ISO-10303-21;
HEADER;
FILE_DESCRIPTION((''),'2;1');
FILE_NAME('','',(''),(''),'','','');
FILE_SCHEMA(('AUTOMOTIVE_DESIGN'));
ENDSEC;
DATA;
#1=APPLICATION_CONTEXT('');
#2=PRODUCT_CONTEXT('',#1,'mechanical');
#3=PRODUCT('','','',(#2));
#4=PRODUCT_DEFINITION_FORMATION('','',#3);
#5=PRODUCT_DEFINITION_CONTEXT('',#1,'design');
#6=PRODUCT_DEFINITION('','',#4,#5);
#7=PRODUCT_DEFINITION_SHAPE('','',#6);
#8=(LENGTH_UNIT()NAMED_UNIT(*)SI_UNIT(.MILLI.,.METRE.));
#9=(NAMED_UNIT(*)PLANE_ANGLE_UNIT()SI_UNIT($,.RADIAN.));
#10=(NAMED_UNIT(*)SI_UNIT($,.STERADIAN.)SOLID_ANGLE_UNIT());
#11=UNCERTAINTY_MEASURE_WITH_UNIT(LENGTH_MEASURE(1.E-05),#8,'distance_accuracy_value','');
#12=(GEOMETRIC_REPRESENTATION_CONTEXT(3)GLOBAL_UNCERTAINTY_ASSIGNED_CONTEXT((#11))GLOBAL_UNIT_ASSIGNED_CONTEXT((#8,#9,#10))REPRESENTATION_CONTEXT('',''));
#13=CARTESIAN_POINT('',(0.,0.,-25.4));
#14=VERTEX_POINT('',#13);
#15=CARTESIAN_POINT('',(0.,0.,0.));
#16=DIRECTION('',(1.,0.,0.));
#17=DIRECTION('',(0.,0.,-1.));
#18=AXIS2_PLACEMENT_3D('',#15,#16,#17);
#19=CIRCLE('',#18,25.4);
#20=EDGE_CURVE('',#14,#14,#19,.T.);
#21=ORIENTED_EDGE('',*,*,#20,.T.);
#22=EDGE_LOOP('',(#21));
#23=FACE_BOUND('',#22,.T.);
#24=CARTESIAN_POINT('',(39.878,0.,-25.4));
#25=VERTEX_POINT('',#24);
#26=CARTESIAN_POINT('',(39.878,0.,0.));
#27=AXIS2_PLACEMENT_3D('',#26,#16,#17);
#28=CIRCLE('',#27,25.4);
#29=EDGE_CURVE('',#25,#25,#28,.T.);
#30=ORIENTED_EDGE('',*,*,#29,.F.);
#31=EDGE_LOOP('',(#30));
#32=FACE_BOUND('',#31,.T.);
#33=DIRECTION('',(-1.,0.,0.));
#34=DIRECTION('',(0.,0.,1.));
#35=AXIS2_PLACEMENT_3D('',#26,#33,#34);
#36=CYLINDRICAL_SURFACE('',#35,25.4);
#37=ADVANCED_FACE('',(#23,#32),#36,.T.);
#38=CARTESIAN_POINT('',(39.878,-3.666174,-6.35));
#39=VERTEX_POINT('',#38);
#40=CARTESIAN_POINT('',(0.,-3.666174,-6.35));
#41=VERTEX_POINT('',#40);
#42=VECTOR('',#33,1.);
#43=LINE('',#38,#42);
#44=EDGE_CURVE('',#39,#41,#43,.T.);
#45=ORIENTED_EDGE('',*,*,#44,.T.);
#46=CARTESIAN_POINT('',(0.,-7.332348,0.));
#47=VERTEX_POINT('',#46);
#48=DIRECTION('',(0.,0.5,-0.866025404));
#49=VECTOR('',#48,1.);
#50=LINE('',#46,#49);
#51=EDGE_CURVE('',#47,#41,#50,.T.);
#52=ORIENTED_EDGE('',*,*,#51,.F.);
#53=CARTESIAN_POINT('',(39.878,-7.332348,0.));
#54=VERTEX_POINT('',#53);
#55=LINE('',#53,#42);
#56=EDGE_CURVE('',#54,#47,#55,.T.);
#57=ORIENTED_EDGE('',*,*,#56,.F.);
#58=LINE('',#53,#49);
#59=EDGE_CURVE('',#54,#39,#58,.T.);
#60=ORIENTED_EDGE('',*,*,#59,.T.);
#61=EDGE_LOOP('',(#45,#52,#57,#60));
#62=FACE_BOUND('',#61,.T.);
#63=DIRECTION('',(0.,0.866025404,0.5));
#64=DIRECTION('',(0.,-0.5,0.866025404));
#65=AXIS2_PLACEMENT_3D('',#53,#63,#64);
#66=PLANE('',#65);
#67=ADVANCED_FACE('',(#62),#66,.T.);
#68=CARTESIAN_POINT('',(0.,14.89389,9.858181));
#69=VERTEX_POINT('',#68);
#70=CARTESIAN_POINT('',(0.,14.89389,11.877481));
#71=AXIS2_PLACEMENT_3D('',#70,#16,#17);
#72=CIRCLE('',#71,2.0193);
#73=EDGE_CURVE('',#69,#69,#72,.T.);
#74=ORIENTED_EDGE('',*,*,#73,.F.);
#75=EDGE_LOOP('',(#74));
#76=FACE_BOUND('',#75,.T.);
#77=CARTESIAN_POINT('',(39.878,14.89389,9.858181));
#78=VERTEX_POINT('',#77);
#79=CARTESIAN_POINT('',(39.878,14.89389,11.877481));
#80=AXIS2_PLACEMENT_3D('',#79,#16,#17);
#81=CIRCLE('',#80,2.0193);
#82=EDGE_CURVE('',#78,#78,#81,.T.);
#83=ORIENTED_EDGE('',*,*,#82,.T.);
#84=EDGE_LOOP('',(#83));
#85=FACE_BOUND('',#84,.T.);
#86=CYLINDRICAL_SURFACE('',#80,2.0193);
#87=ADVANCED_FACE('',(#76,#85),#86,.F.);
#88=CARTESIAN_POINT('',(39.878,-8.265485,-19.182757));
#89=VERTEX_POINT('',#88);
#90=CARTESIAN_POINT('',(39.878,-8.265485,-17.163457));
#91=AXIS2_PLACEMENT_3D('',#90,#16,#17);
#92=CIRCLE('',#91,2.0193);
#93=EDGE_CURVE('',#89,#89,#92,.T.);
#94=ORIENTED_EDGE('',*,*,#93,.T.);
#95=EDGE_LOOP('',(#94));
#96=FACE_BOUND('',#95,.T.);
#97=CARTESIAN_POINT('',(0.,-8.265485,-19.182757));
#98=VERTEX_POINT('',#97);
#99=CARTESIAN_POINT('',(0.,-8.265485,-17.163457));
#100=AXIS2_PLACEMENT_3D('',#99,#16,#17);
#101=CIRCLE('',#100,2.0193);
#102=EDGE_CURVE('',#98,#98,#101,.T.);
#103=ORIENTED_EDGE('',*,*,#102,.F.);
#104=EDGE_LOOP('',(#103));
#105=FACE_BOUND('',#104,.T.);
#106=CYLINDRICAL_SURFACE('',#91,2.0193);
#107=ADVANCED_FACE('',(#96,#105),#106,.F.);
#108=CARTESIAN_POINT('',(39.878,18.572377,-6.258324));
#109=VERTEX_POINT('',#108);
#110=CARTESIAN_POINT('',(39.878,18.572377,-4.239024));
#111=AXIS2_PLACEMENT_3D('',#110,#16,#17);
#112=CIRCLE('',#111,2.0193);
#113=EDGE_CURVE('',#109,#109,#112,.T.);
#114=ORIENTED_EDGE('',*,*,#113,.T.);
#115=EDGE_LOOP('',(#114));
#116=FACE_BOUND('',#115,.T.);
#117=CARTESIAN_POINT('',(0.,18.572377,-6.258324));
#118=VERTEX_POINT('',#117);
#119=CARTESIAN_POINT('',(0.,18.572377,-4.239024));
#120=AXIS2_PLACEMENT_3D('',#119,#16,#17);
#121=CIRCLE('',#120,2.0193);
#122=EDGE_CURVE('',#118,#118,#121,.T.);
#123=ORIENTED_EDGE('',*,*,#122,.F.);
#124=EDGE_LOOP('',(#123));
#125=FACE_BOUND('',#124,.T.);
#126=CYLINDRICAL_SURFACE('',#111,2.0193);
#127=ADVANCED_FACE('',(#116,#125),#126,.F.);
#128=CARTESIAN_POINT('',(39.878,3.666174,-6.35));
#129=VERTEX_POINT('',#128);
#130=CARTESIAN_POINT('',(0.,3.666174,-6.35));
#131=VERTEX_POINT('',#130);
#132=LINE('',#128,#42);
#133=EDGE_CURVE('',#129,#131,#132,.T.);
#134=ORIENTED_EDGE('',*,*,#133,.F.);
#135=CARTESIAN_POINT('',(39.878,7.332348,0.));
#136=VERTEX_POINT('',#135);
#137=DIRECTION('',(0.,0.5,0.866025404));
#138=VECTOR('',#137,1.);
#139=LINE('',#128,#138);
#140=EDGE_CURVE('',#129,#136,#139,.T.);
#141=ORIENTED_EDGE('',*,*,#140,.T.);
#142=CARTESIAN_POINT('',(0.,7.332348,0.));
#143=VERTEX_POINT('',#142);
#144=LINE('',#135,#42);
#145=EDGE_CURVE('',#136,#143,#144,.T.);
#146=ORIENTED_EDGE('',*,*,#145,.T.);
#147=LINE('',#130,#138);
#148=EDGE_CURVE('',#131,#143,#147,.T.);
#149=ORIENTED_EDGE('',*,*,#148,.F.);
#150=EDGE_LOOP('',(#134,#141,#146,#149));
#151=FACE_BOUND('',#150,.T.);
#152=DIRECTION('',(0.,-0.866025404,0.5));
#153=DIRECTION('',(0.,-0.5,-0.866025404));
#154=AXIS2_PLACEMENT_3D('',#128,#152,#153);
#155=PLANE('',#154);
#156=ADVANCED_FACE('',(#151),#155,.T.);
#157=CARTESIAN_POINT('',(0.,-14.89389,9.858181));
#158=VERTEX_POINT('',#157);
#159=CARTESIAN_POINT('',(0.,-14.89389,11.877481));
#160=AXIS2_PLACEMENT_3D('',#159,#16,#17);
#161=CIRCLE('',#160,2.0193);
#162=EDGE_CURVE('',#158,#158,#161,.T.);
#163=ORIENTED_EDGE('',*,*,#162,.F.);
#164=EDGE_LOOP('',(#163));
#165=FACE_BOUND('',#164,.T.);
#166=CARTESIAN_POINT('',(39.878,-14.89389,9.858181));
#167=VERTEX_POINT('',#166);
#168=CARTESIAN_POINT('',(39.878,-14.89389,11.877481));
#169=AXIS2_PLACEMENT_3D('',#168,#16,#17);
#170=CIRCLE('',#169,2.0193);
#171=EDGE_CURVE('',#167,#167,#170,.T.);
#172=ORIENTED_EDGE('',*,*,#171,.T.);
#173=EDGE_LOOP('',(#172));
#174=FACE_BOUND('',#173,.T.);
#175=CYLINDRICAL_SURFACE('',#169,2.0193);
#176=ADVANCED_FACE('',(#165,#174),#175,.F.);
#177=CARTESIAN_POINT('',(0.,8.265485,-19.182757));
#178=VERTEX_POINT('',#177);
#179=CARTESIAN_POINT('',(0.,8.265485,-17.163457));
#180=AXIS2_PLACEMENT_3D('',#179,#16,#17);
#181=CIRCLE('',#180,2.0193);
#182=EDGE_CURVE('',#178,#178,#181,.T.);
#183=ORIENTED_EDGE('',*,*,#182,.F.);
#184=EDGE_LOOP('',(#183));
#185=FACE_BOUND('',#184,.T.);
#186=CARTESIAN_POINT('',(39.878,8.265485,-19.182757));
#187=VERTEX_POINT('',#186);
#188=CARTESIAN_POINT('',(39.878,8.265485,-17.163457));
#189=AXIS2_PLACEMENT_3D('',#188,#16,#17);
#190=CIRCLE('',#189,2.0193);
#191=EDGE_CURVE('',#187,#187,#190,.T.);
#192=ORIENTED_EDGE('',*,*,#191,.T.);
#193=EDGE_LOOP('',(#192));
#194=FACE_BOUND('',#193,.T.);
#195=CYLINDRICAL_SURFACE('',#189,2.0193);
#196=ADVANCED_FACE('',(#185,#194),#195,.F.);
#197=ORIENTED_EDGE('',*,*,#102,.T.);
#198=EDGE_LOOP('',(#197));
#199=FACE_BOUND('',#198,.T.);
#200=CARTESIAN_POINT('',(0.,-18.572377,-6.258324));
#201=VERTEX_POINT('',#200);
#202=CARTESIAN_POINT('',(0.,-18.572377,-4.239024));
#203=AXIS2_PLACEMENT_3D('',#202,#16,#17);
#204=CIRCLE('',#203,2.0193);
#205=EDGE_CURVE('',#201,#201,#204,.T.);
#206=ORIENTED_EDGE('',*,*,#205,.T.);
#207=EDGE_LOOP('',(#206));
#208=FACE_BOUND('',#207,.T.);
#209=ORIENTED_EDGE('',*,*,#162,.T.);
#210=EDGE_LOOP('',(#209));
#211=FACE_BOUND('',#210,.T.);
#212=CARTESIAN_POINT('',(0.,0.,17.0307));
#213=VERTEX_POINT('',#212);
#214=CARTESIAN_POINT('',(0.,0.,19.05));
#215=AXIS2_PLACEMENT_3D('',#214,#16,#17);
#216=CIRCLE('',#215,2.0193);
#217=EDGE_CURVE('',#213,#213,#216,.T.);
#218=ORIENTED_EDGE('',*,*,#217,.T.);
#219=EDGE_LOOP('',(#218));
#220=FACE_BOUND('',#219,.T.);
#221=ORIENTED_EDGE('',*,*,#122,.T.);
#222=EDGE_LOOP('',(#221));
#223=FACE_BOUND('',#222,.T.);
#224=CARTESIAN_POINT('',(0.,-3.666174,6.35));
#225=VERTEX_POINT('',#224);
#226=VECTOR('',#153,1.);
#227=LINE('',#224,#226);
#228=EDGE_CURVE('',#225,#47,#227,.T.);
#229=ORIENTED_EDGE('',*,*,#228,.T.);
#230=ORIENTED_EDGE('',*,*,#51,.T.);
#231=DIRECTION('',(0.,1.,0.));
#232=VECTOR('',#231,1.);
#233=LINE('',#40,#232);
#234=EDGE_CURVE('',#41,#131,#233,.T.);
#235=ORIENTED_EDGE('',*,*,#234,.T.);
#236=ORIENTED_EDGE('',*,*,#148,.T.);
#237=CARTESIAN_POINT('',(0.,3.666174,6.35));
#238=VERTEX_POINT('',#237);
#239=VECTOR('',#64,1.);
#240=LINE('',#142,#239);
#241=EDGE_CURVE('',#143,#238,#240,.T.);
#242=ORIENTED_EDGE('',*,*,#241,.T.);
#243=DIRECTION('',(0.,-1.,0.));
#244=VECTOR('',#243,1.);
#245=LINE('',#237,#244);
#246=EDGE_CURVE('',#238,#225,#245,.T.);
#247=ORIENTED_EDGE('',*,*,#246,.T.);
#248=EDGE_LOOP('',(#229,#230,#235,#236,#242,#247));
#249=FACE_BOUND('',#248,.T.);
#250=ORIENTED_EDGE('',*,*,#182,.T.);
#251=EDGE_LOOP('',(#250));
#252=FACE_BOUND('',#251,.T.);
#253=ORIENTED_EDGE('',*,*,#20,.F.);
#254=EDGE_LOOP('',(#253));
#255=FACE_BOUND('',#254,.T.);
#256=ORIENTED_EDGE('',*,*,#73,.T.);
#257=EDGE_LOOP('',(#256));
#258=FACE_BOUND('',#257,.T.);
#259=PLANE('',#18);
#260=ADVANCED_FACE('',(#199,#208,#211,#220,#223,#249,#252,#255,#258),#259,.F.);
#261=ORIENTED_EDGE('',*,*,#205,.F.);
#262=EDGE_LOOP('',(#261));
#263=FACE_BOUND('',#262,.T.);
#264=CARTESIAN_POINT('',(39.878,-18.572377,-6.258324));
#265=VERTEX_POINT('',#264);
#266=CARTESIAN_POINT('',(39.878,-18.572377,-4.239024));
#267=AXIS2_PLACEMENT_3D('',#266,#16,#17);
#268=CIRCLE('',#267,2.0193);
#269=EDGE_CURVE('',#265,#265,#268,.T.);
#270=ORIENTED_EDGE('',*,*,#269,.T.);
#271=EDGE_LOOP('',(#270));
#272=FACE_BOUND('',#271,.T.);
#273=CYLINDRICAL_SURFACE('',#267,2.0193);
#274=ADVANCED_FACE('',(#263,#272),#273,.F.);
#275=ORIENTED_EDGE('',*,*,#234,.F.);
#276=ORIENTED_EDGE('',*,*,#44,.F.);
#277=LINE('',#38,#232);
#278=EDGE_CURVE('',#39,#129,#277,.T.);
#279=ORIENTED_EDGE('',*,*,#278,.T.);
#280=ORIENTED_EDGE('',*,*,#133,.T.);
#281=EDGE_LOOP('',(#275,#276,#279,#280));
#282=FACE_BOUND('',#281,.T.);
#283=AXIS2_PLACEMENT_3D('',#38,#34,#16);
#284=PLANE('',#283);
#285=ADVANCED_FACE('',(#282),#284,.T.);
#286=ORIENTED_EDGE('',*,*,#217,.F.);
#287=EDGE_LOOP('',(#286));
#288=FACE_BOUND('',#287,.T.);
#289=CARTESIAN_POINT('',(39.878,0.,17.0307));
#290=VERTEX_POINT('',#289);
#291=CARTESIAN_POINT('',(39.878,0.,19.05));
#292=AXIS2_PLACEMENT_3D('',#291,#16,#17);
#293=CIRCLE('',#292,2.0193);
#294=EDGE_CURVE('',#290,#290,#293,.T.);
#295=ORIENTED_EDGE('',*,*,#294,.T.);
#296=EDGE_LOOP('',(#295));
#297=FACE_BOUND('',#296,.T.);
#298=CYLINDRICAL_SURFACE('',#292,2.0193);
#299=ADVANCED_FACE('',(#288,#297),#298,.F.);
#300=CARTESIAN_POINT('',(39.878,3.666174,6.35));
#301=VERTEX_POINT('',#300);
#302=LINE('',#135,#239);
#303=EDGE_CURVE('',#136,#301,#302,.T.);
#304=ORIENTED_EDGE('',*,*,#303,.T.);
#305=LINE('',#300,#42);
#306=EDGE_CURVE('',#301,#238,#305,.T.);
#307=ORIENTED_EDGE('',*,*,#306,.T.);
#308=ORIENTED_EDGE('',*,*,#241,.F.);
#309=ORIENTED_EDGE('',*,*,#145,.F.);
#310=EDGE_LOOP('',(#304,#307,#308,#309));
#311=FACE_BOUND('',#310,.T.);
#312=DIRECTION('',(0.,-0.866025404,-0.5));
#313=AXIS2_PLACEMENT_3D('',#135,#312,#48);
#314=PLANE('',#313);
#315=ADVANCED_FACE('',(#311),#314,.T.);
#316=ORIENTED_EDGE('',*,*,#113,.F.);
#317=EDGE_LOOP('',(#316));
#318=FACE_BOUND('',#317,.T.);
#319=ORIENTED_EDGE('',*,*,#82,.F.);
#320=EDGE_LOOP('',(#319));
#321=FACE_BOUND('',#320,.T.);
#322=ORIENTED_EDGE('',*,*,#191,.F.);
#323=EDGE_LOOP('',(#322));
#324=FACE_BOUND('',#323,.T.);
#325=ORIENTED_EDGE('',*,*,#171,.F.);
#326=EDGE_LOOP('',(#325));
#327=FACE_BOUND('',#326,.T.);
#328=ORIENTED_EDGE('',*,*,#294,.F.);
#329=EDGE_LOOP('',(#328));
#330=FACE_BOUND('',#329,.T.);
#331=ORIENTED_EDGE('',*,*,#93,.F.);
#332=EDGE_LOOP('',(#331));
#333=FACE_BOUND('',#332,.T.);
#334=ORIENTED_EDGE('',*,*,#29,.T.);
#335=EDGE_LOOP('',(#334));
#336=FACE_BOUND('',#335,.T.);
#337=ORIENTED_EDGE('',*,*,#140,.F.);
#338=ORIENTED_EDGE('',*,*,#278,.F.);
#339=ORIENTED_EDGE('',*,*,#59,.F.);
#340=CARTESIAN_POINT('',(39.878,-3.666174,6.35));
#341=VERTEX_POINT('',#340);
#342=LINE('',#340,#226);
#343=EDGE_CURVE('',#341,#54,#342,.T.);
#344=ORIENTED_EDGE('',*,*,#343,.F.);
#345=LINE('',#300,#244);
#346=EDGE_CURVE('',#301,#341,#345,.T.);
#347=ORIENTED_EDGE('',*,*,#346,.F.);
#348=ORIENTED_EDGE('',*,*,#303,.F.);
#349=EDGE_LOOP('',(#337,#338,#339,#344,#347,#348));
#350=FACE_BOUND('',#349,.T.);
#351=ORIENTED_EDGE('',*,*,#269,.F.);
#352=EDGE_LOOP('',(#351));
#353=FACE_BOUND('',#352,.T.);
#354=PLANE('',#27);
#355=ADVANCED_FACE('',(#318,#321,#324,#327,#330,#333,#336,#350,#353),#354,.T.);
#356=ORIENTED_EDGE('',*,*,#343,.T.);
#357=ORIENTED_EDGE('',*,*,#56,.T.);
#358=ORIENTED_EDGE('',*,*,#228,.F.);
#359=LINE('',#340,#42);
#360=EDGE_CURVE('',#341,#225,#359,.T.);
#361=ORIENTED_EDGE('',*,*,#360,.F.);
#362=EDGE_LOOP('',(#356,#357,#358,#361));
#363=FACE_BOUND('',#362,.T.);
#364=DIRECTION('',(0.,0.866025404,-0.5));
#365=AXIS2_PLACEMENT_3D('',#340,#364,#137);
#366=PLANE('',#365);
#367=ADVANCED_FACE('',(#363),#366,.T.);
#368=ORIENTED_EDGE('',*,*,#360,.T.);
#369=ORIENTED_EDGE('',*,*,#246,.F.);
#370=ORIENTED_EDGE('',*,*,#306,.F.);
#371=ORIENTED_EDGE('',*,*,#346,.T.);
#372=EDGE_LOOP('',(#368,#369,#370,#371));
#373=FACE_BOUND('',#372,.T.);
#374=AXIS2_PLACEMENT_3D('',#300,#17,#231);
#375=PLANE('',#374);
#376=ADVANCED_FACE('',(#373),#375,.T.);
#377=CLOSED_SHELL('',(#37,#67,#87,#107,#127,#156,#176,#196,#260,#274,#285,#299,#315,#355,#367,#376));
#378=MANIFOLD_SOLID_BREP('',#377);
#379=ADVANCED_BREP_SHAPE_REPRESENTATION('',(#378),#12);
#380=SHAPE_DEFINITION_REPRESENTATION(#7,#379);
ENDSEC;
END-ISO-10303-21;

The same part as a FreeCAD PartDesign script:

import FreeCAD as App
import Part
import Sketcher
from FreeCAD import Vector
Q = App.Units.Quantity


def add_polygon(sketch, points):
    """Adds a closed chain of lines whose ends are joined by coincident constraints."""
    first, n = sketch.GeometryCount, len(points)
    for a, b in zip(points, points[1:] + points[:1]):
        sketch.addGeometry(Part.LineSegment(App.Vector(*a, 0), App.Vector(*b, 0)), False)
    for i in range(n):
        sketch.addConstraint(Sketcher.Constraint("Coincident", first + i, 2, first + (i + 1) % n, 1))

doc = App.newDocument("Part")
body = doc.addObject("PartDesign::Body", "Body")

sketch1 = body.newObject("Sketcher::SketchObject", "Sketch")
sketch1.AttachmentSupport = (doc.getObject("YZ_Plane"), [""])
sketch1.MapMode = "FlatFace"
sketch1.addGeometry(Part.Circle(Vector(0, 0, 0), Vector(0, 0, 1), 25), False)
add_polygon(sketch1, [(-4, 6), (4, 6), (7, 0), (4, -6), (-4, -6), (-7, 0)])
sketch1.addConstraint([
    Sketcher.Constraint("Horizontal", 1),
    Sketcher.Constraint("Horizontal", 4),
    Sketcher.Constraint("Coincident", 0, 3, -1, 1),
    Sketcher.Constraint("Symmetric", 1, 2, 4, 2, -1, 1),
    Sketcher.Constraint("Symmetric", 2, 2, 5, 2, -1, 1),
    Sketcher.Constraint("PointOnObject", 2, 2, -1),
    Sketcher.Constraint("Parallel", 3, 6),
    Sketcher.Constraint("Vertical", 1, 2, 3, 2),
    Sketcher.Constraint("Diameter", 0, Q("2 in")),
    Sketcher.Constraint("Angle", 2, Q("-60 deg")),
    Sketcher.Constraint("DistanceY", 3, 2, 1, 2, Q("0.5 in")),
    Sketcher.Constraint("DistanceX", 1, 1, 1, 2, Q("7.332348 mm")),
])
pad1 = body.newObject("PartDesign::Pad", "Pad")
pad1.Profile = sketch1
pad1.Length = Q("1.57 in")

sketch2 = body.newObject("Sketcher::SketchObject", "Sketch001")
sketch2.AttachmentSupport = (doc.getObject("YZ_Plane"), [""])
sketch2.MapMode = "FlatFace"
sketch2.AttachmentOffset = App.Placement(Vector(0, 0, 1.57 * 25.4), App.Rotation())
sketch2.addGeometry([
    Part.Circle(Vector(-14.9, 11.9, 0), Vector(0, 0, 1), 2),
    Part.Circle(Vector(0, 19.1, 0), Vector(0, 0, 1), 2),
    Part.Circle(Vector(14.9, 11.9, 0), Vector(0, 0, 1), 2),
    Part.Circle(Vector(18.6, -4.2, 0), Vector(0, 0, 1), 2),
    Part.Circle(Vector(8.3, -17.2, 0), Vector(0, 0, 1), 2),
    Part.Circle(Vector(-8.3, -17.2, 0), Vector(0, 0, 1), 2),
    Part.Circle(Vector(-18.6, -4.2, 0), Vector(0, 0, 1), 2),
], False)
sketch2.addConstraint([
    Sketcher.Constraint("Equal", 0, 1),
    Sketcher.Constraint("Equal", 1, 2),
    Sketcher.Constraint("Equal", 2, 3),
    Sketcher.Constraint("Equal", 3, 4),
    Sketcher.Constraint("Equal", 4, 5),
    Sketcher.Constraint("Equal", 5, 6),
    Sketcher.Constraint("Symmetric", 0, 3, 2, 3, -2),
    Sketcher.Constraint("Symmetric", 4, 3, 5, 3, -2),
    Sketcher.Constraint("Symmetric", 3, 3, 6, 3, -2),
    Sketcher.Constraint("PointOnObject", 1, 3, -2),
    Sketcher.Constraint("Diameter", 0, Q("0.159 in")),
    Sketcher.Constraint("DistanceY", -1, 1, 1, 3, Q("0.75 in")),
    Sketcher.Constraint("DistanceX", 0, 3, -1, 1, Q("14.89389 mm")),
    Sketcher.Constraint("DistanceY", -1, 1, 0, 3, Q("11.877481 mm")),
    Sketcher.Constraint("DistanceX", 4, 3, 3, 3, Q("10.306891 mm")),
    Sketcher.Constraint("DistanceX", 5, 3, 4, 3, Q("16.53097 mm")),
    Sketcher.Constraint("DistanceY", 3, 3, -1, 1, Q("4.239024 mm")),
    Sketcher.Constraint("DistanceY", 4, 3, -1, 1, Q("17.163457 mm")),
])
doc.recompute()
hole = body.newObject("PartDesign::Hole", "Hole")
hole.Profile = sketch2
hole.ThreadType = "None"
hole.Diameter = Q("0.159 in")
hole.DepthType = "ThroughAll"

doc.recompute()
